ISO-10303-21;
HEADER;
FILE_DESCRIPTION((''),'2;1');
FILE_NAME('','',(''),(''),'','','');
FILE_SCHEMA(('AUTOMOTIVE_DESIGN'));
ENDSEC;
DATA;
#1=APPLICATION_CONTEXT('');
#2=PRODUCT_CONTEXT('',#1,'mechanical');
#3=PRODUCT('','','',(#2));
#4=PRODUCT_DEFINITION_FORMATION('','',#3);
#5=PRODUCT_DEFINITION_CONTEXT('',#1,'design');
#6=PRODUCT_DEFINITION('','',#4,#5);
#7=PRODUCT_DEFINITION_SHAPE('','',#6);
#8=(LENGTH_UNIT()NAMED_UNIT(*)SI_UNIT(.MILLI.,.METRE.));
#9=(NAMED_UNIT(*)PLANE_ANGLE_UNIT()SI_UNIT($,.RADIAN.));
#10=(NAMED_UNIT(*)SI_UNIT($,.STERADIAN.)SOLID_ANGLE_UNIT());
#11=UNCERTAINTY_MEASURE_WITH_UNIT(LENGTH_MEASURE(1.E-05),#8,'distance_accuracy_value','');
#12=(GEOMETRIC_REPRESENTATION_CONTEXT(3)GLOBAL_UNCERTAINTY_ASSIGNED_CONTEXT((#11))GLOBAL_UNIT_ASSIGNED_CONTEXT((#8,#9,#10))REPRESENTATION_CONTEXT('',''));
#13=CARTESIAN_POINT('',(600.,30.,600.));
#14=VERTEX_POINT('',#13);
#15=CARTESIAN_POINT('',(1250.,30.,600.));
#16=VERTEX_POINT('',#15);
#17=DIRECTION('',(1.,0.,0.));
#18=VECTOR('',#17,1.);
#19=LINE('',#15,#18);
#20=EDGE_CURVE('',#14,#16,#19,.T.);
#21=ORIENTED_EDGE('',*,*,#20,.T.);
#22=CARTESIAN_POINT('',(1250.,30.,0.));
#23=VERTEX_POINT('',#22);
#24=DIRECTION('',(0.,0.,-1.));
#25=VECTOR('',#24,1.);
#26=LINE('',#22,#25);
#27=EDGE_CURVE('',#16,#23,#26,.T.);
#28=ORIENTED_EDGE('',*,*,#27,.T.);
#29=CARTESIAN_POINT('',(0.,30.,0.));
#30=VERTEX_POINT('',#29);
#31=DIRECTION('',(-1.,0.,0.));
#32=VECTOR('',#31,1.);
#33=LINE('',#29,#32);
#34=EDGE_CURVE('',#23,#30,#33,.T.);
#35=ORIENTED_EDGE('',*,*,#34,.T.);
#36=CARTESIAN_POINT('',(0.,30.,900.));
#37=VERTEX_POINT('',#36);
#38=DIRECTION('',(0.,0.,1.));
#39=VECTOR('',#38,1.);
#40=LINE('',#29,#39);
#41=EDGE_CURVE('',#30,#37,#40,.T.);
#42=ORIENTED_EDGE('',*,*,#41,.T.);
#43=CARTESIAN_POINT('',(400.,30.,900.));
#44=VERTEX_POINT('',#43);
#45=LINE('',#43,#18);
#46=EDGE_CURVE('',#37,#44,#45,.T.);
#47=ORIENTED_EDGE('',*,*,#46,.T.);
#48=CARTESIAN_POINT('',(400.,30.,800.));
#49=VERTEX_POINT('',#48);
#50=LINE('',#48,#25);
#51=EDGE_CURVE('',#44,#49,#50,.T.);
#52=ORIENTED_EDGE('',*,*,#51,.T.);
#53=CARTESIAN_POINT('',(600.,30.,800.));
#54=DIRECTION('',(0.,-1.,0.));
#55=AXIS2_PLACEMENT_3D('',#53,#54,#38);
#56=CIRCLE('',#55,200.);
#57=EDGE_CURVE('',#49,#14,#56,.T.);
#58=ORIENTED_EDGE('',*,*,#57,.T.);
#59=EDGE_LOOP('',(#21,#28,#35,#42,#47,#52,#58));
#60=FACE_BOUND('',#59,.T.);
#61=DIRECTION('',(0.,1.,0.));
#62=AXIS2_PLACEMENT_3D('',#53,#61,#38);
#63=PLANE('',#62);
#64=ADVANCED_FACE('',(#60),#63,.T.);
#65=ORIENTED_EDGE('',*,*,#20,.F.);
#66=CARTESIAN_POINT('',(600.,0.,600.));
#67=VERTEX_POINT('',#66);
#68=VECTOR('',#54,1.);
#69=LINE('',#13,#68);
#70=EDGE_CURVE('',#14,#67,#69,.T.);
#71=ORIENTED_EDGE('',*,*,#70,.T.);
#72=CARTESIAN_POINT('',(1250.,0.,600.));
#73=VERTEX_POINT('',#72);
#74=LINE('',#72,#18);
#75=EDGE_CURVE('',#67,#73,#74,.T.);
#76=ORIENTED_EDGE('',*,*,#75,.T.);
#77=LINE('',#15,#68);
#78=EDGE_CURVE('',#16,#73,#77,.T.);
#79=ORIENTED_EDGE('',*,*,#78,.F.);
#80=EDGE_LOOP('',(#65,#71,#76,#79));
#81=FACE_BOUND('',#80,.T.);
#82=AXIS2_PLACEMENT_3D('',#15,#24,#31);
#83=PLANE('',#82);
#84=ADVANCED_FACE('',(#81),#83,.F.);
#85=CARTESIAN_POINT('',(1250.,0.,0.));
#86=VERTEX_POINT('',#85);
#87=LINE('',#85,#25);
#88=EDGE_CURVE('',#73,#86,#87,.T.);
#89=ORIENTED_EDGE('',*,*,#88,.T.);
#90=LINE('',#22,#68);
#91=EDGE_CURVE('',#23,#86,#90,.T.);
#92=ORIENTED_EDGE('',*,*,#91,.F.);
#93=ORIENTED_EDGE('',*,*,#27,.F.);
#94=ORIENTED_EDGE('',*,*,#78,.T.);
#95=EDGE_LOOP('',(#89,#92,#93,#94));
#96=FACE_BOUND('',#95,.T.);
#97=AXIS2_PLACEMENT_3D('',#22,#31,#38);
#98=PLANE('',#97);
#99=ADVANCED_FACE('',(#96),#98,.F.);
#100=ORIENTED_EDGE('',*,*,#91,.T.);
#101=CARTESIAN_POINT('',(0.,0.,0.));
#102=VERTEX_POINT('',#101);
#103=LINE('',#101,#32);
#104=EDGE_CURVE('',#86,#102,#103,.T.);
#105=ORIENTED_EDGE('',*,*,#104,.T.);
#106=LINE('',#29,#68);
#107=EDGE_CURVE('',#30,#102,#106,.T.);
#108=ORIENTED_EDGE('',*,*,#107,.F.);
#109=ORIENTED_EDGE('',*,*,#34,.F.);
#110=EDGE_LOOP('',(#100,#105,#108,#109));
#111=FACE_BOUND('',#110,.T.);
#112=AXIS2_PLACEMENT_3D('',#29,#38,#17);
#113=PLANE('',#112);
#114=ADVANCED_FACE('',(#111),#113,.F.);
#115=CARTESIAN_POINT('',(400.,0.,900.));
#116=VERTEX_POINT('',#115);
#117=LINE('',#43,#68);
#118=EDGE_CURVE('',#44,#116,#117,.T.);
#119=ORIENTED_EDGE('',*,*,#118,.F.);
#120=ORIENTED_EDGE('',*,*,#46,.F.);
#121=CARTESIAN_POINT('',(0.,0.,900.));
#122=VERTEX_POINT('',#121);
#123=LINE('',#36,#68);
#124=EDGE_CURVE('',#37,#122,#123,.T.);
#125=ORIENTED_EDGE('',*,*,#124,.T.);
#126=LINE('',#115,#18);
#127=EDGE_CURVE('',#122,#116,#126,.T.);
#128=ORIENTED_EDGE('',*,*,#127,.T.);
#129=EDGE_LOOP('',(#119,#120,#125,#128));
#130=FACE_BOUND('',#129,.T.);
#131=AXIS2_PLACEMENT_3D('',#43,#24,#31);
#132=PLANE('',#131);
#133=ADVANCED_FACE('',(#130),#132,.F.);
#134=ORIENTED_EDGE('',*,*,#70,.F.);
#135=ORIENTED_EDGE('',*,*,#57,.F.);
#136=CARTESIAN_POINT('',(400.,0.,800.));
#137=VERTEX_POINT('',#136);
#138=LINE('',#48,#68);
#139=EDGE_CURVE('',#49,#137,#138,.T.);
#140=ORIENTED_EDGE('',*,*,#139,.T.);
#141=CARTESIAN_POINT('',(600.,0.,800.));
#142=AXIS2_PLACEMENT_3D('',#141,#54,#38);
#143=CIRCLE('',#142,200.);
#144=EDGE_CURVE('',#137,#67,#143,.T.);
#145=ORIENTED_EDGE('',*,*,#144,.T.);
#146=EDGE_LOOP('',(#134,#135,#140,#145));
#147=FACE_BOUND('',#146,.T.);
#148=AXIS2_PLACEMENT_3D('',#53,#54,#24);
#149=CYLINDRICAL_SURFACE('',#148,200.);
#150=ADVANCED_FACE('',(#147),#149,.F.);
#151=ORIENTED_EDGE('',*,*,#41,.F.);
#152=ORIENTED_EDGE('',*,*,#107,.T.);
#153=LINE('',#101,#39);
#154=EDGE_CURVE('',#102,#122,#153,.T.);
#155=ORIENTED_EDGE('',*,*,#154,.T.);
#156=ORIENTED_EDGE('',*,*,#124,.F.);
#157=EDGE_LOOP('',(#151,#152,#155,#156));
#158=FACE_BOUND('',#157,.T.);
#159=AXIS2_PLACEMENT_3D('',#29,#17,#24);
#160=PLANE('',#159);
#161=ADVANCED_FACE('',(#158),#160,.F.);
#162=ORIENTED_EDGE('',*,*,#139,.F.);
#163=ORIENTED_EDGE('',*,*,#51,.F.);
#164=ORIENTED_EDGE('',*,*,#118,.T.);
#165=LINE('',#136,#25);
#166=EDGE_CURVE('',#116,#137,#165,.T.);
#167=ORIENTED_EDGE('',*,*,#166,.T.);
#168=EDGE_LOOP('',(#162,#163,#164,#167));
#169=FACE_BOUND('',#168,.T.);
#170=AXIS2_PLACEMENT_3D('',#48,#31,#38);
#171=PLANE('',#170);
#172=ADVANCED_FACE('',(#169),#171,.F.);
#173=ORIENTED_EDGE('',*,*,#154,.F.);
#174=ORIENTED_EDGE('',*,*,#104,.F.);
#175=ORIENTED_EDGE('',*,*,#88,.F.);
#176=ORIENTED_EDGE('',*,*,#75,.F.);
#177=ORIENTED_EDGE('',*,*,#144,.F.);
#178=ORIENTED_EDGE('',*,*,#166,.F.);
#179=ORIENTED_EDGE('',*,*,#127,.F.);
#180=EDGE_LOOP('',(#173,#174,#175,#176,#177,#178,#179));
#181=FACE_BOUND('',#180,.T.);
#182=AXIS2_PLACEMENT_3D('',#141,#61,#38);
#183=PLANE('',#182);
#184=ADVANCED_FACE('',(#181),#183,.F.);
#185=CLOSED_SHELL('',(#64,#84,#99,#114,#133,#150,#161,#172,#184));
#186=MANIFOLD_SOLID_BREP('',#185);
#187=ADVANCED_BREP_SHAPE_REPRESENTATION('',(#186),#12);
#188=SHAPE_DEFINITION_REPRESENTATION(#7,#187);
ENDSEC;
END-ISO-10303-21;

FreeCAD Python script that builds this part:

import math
import FreeCAD as App
import Part
import Sketcher

V = App.Vector
Q = App.Units.Quantity

doc = App.newDocument("Part")
params = doc.addObject("Spreadsheet::Sheet", "Params")
for row, (alias, value) in enumerate([
    ("sketch1_radius", "200 mm"),
    ("sketch1_width", "400 mm"),
    ("sketch1_width2", "650 mm"),
    ("sketch1_height", "900 mm"),
    ("sketch1_height2", "100 mm"),
    ("pad1_length", "30 mm"),
], start=1):
    params.set(f"A{row}", alias)
    params.set(f"B{row}", "=" + value)
    params.setAlias(f"B{row}", alias)

body = doc.addObject("PartDesign::Body", "Body")

sketch1 = body.newObject("Sketcher::SketchObject", "Sketch")
sketch1.AttachmentSupport = (doc.getObject("XZ_Plane"), [""])
sketch1.MapMode = "FlatFace"
sketch1.addGeometry(Part.LineSegment(V(0, 0, 0), V(0, 900, 0)), False)
sketch1.addGeometry(Part.LineSegment(V(0, 900, 0), V(400, 900, 0)), False)
sketch1.addGeometry(Part.LineSegment(V(400, 900, 0), V(400, 800, 0)), False)
sketch1.addGeometry(Part.ArcOfCircle(Part.Circle(V(600, 800, 0), V(0, 0, 1), 200), math.radians(-180), math.radians(-90)), False)
sketch1.addGeometry(Part.LineSegment(V(600, 600, 0), V(1250, 600, 0)), False)
sketch1.addGeometry(Part.LineSegment(V(1250, 600, 0), V(1250, 0, 0)), False)
sketch1.addGeometry(Part.LineSegment(V(1250, 0, 0), V(0, 0, 0)), False)
sketch1.addConstraint(Sketcher.Constraint("Coincident", 0, 2, 1, 1))
sketch1.addConstraint(Sketcher.Constraint("Coincident", 1, 2, 2, 1))
sketch1.addConstraint(Sketcher.Constraint("Tangent", 2, 2, 3, 1))
sketch1.addConstraint(Sketcher.Constraint("Tangent", 3, 2, 4, 1))
sketch1.addConstraint(Sketcher.Constraint("Coincident", 4, 2, 5, 1))
sketch1.addConstraint(Sketcher.Constraint("Coincident", 5, 2, 6, 1))
sketch1.addConstraint(Sketcher.Constraint("Coincident", 6, 2, 0, 1))
sketch1.addConstraint(Sketcher.Constraint("Vertical", 0))
sketch1.addConstraint(Sketcher.Constraint("Horizontal", 1))
sketch1.addConstraint(Sketcher.Constraint("Vertical", 2))
sketch1.addConstraint(Sketcher.Constraint("Horizontal", 4))
sketch1.addConstraint(Sketcher.Constraint("Vertical", 5))
sketch1.addConstraint(Sketcher.Constraint("Horizontal", 6))
sketch1.addConstraint(Sketcher.Constraint("Coincident", 6, 2, -1, 1))
sketch1.addConstraint(Sketcher.Constraint("Radius", 3, Q("200 mm")))
sketch1.addConstraint(Sketcher.Constraint("DistanceX", 1, 1, 1, 2, Q("400 mm")))
sketch1.addConstraint(Sketcher.Constraint("DistanceX", 4, 1, 4, 2, Q("650 mm")))
sketch1.addConstraint(Sketcher.Constraint("DistanceY", 0, 1, 0, 2, Q("900 mm")))
sketch1.addConstraint(Sketcher.Constraint("DistanceY", 2, 2, 2, 1, Q("100 mm")))
sketch1.setExpression("Constraints[14]", "Params.sketch1_radius")
sketch1.setExpression("Constraints[15]", "Params.sketch1_width")
sketch1.setExpression("Constraints[16]", "Params.sketch1_width2")
sketch1.setExpression("Constraints[17]", "Params.sketch1_height")
sketch1.setExpression("Constraints[18]", "Params.sketch1_height2")
pad1 = body.newObject("PartDesign::Pad", "Pad")
pad1.Profile = sketch1
pad1.setExpression("Length", "Params.pad1_length")
pad1.Reversed = True

doc.recompute()
